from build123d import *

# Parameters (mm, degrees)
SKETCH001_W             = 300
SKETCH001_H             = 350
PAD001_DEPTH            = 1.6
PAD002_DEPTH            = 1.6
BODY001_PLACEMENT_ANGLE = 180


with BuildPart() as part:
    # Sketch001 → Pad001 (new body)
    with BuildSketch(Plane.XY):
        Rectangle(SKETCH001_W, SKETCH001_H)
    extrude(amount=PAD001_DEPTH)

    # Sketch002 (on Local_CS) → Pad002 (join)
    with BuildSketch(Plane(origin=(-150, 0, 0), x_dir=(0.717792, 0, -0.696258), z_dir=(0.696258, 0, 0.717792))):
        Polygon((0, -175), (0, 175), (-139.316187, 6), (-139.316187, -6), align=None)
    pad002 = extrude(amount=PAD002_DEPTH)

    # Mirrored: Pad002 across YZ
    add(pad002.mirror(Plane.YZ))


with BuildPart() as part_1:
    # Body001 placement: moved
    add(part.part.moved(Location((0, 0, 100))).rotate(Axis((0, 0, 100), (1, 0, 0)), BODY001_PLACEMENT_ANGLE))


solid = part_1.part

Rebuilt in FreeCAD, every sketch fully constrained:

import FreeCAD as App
import Part
import Sketcher
from FreeCAD import Vector
Q = App.Units.Quantity


def add_polygon(sketch, points):
    """Adds a closed chain of lines whose ends are joined by coincident constraints."""
    first, n = sketch.GeometryCount, len(points)
    for a, b in zip(points, points[1:] + points[:1]):
        sketch.addGeometry(Part.LineSegment(App.Vector(*a, 0), App.Vector(*b, 0)), False)
    for i in range(n):
        sketch.addConstraint(Sketcher.Constraint("Coincident", first + i, 2, first + (i + 1) % n, 1))

doc = App.newDocument("Part")
body = doc.addObject("PartDesign::Body", "Body")

# Sketch on XY plane
sketch1 = body.newObject("Sketcher::SketchObject", "Sketch")
sketch1.AttachmentSupport = (doc.getObject("XY_Plane"), [""])
sketch1.MapMode = "FlatFace"
add_polygon(sketch1, [(-150, 175), (-150, -175), (150, -175), (150, 175)])  # lines 0-3
sketch1.addConstraint([
    Sketcher.Constraint("Vertical", 0),
    Sketcher.Constraint("Horizontal", 1),
    Sketcher.Constraint("Vertical", 2),
    Sketcher.Constraint("Horizontal", 3),
    Sketcher.Constraint("Symmetric", 0, 2, 2, 2, -1, 1),
    Sketcher.Constraint("DistanceX", 1, 1, 1, 2, Q("300 mm")),
    Sketcher.Constraint("DistanceY", 0, 2, 0, 1, Q("350 mm")),
])
pad1 = body.newObject("PartDesign::Pad", "Pad")
pad1.Profile = sketch1
pad1.Length = 1.6

# Sketch on an angled plane
sketch2 = body.newObject("Sketcher::SketchObject", "Sketch001")
sketch2.Placement = App.Placement(Vector(-150, 0, 0), App.Rotation(Vector(0.7177918, 0, -0.696257806), Vector(0, 1.000000001, 0), Vector(0.696257806, 0, 0.7177918), "ZXY"))
add_polygon(sketch2, [(0, -175), (0, 175), (-139.316187, 6), (-139.316187, -6)])  # lines 0-3
sketch2.addConstraint([
    Sketcher.Constraint("Vertical", 0),
    Sketcher.Constraint("Vertical", 2),
    Sketcher.Constraint("Symmetric", 0, 2, 3, 2, -1, 1),
    Sketcher.Constraint("Equal", 1, 3),
    Sketcher.Constraint("DistanceY", 0, 1, 0, 2, Q("350 mm")),
    Sketcher.Constraint("DistanceY", 2, 2, 2, 1, Q("12 mm")),
    Sketcher.Constraint("Distance", 1, Q("219.020547 mm")),
])
pad2 = body.newObject("PartDesign::Pad", "Pad001")
pad2.Profile = sketch2
pad2.Length = 1.6
doc.recompute()

mirrored = body.newObject("PartDesign::Mirrored", "Mirrored")
mirrored.Originals = [pad2]
mirrored.MirrorPlane = (doc.getObject("YZ_Plane"), [""])
body.Tip = mirrored
body2 = doc.addObject("PartDesign::Body", "Body001")
doc.recompute()

body.Placement = App.Placement(Vector(0, 0, 100), App.Rotation(Vector(1, 0, 0), 180))
boolean = body2.newObject("PartDesign::Boolean", "Boolean")
boolean.Type = "Fuse"
boolean.addObjects([body])

doc.recompute()
